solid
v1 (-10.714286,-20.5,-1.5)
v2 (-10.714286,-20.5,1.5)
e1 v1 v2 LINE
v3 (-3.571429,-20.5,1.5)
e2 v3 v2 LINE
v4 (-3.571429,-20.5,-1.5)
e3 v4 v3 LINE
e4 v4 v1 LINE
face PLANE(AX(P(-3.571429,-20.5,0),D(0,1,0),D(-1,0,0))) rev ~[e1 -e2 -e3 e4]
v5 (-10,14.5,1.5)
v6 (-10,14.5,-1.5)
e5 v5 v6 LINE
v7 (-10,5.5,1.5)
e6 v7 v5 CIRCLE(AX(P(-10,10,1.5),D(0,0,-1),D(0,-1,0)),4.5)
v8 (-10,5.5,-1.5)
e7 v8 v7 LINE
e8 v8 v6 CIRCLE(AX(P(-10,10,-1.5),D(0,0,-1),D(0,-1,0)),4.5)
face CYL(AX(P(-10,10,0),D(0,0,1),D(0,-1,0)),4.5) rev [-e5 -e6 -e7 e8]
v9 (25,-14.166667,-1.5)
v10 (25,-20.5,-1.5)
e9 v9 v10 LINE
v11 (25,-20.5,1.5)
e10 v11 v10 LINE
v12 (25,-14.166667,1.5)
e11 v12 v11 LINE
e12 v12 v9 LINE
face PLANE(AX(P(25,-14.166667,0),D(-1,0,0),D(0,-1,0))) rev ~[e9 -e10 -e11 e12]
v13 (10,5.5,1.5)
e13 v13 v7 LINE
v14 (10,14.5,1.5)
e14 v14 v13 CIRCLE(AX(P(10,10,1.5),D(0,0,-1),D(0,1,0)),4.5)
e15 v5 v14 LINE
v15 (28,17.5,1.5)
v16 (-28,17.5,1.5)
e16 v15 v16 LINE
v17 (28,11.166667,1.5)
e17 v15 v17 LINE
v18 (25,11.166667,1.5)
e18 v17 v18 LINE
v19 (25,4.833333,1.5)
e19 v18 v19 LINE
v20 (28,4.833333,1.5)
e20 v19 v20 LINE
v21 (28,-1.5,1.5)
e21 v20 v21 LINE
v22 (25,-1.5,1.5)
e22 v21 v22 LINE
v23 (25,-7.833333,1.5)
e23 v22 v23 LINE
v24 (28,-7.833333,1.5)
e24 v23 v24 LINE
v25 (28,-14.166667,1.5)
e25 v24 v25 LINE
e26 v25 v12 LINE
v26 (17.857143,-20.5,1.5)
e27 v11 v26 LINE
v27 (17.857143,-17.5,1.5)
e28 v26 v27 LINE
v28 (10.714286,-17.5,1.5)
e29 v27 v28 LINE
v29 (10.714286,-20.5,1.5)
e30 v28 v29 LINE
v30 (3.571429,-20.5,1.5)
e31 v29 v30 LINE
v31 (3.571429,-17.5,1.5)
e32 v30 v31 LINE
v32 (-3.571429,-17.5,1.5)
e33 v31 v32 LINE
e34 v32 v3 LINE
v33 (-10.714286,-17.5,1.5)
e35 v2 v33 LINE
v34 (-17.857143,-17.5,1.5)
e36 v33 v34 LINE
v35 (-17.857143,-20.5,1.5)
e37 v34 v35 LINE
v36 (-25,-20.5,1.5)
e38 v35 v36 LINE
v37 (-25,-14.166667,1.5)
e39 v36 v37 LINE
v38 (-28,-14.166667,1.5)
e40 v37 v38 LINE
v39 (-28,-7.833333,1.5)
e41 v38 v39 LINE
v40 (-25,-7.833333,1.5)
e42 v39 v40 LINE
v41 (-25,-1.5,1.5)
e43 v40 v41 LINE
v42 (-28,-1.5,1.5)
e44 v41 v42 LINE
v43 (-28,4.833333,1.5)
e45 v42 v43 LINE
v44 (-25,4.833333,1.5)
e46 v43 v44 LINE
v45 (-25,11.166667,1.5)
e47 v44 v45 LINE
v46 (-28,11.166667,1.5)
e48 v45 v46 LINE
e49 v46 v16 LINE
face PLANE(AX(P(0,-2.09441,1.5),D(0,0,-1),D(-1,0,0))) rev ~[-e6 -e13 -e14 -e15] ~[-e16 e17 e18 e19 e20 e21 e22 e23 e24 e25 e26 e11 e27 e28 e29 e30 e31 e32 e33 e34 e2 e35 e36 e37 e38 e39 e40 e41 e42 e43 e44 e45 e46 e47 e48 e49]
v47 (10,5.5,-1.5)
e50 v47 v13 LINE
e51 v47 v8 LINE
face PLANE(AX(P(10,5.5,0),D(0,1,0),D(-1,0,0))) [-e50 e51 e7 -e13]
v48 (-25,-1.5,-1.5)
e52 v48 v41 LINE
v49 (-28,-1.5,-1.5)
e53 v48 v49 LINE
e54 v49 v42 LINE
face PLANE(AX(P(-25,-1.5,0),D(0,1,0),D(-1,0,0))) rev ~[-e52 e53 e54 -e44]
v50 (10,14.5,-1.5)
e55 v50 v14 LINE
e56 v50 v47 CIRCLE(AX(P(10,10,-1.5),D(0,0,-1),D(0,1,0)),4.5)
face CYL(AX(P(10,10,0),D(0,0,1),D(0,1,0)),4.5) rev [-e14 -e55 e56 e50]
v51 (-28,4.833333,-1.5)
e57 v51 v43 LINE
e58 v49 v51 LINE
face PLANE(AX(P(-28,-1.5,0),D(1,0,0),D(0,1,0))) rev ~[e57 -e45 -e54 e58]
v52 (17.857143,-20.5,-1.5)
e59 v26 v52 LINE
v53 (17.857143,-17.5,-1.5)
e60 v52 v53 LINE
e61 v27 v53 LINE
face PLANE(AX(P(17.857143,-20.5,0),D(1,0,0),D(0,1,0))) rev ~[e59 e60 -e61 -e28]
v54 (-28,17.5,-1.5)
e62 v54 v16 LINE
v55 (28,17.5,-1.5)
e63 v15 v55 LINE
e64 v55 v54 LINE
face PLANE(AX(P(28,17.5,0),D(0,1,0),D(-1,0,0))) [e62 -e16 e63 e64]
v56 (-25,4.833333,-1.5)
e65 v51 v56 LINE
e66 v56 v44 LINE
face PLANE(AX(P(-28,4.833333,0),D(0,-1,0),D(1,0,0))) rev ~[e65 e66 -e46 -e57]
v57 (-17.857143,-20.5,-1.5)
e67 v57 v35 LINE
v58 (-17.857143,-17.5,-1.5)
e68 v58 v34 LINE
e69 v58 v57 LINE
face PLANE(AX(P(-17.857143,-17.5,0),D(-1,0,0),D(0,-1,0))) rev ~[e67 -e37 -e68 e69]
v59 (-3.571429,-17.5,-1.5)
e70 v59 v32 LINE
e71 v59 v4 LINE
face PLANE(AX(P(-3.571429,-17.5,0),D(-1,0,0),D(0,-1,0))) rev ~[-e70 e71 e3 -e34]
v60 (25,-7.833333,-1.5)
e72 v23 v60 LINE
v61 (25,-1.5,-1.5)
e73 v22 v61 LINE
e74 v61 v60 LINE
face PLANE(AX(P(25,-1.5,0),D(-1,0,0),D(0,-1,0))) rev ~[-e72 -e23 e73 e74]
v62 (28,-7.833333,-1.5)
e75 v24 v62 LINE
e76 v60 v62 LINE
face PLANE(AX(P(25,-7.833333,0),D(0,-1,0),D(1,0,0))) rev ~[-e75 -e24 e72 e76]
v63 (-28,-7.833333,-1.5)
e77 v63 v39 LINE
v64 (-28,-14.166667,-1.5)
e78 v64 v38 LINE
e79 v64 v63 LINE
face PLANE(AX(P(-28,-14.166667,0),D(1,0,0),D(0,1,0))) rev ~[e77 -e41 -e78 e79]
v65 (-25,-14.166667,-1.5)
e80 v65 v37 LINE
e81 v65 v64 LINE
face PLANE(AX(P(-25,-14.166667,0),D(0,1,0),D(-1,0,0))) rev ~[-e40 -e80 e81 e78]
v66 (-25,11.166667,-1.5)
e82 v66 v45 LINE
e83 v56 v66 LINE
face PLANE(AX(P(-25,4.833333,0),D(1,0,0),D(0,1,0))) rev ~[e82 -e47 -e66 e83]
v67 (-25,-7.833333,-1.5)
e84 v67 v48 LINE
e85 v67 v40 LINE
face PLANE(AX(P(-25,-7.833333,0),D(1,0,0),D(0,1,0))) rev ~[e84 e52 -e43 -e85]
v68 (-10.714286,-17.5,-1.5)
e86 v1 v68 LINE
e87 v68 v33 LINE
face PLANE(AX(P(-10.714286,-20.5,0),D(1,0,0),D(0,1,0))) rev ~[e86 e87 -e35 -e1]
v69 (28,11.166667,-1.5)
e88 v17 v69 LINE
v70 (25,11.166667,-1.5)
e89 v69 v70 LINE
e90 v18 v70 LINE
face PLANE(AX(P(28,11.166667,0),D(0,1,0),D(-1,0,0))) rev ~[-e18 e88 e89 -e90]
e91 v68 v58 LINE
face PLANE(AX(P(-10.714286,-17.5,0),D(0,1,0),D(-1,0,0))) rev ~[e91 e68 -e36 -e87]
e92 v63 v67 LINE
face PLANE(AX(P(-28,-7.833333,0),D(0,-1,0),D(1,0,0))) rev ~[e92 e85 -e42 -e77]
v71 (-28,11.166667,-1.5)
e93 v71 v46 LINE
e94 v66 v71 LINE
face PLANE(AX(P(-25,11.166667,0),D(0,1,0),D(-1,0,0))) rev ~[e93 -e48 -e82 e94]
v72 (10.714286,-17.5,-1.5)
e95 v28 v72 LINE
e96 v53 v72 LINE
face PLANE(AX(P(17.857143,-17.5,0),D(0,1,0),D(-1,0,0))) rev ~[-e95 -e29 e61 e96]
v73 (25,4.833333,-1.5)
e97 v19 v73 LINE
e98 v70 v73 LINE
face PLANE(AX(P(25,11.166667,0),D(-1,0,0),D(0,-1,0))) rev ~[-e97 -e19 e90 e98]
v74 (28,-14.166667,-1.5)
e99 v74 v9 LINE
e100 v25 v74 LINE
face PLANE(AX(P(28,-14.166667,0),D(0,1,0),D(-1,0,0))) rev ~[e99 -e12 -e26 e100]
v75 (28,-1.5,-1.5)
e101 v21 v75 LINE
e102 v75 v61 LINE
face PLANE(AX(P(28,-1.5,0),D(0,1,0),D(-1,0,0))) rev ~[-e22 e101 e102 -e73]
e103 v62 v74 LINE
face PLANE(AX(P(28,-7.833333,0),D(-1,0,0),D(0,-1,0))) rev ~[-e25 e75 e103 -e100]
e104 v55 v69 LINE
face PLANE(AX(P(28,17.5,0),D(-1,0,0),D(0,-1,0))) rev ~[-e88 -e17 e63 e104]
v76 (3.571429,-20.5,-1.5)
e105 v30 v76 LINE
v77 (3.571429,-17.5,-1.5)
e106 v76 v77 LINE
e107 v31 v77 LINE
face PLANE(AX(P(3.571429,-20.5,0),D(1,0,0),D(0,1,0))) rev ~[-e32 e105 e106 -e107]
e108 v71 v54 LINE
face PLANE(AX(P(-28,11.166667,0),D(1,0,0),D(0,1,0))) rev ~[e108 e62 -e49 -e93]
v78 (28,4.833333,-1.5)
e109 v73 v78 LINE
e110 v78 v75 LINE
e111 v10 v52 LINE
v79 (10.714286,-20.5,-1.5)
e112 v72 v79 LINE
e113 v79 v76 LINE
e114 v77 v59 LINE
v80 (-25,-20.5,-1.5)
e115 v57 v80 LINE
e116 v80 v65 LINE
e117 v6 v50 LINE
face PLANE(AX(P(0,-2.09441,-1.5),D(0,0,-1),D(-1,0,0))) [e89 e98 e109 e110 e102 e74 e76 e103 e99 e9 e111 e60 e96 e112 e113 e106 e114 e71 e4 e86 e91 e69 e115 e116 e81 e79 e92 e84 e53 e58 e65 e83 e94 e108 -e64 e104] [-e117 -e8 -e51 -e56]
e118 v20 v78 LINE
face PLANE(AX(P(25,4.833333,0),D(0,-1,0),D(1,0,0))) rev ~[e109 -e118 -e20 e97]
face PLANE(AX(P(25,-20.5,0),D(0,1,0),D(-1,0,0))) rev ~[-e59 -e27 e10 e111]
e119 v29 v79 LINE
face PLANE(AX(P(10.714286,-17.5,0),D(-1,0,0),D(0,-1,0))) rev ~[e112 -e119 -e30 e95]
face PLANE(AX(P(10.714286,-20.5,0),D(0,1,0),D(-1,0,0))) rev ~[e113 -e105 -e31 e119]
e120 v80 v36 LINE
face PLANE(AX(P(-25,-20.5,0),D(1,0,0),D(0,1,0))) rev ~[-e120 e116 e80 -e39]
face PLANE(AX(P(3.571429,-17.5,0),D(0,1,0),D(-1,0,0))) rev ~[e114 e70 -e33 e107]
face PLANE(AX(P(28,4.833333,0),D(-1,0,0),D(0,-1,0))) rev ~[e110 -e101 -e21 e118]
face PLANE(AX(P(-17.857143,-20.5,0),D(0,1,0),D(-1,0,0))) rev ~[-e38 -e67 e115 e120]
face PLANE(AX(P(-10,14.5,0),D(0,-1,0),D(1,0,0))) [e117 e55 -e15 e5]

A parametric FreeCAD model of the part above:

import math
import FreeCAD as App
import Part
import Sketcher

V = App.Vector


def add_polygon(sketch, points):
    """Adds a closed chain of lines whose ends are joined by coincident constraints."""
    first, n = sketch.GeometryCount, len(points)
    for a, b in zip(points, points[1:] + points[:1]):
        sketch.addGeometry(Part.LineSegment(App.Vector(*a, 0), App.Vector(*b, 0)), False)
    for i in range(n):
        sketch.addConstraint(Sketcher.Constraint("Coincident", first + i, 2, first + (i + 1) % n, 1))

doc = App.newDocument("Part")
body = doc.addObject("PartDesign::Body", "Body")

# Sketch on XY plane
sketch1 = doc.addObject("Sketcher::SketchObject", "Sketch")
body.addObject(sketch1)
sketch1.AttachmentSupport = (doc.XY_Plane, [""])
sketch1.MapMode = "FlatFace"
add_polygon(sketch1, [(28, 17.5), (-28, 17.5), (-28, 11.2), (-25, 11.2), (-25, 4.8), (-28, 4.8), (-28, -1.5), (-25, -1.5), (-25, -7.8), (-28, -7.8), (-28, -14.2), (-25, -14.2), (-25, -20.5), (-17.9, -20.5), (-17.9, -17.5), (-10.7, -17.5), (-10.7, -20.5), (-3.6, -20.5), (-3.6, -17.5), (3.6, -17.5), (3.6, -20.5), (10.7, -20.5), (10.7, -17.5), (17.9, -17.5), (17.9, -20.5), (25, -20.5), (25, -14.2), (28, -14.2), (28, -7.8), (25, -7.8), (25, -1.5), (28, -1.5), (28, 4.8), (25, 4.8), (25, 11.2), (28, 11.2)])  # lines 0-35
sketch1.addGeometry(Part.LineSegment(V(-10, 14.5, 0), V(10, 14.5, 0)), False)  # 36
sketch1.addGeometry(Part.ArcOfCircle(Part.Circle(V(10, 10, 0), V(0, 0, 1), 4.5), math.radians(-90), math.radians(90)), False)  # 37
sketch1.addGeometry(Part.LineSegment(V(10, 5.5, 0), V(-10, 5.5, 0)), False)  # 38
sketch1.addGeometry(Part.ArcOfCircle(Part.Circle(V(-10, 10, 0), V(0, 0, 1), 4.5), math.radians(90), math.radians(270)), False)  # 39
sketch1.addConstraint(Sketcher.Constraint("Tangent", 36, 2, 37, 2))
sketch1.addConstraint(Sketcher.Constraint("Tangent", 37, 1, 38, 1))
sketch1.addConstraint(Sketcher.Constraint("Tangent", 38, 2, 39, 2))
sketch1.addConstraint(Sketcher.Constraint("Tangent", 39, 1, 36, 1))
sketch1.addConstraint(Sketcher.Constraint("Horizontal", 0))
sketch1.addConstraint(Sketcher.Constraint("Vertical", 1))
sketch1.addConstraint(Sketcher.Constraint("Horizontal", 2))
sketch1.addConstraint(Sketcher.Constraint("Vertical", 3))
sketch1.addConstraint(Sketcher.Constraint("Horizontal", 4))
sketch1.addConstraint(Sketcher.Constraint("Vertical", 5))
sketch1.addConstraint(Sketcher.Constraint("Horizontal", 6))
sketch1.addConstraint(Sketcher.Constraint("Vertical", 7))
sketch1.addConstraint(Sketcher.Constraint("Horizontal", 8))
sketch1.addConstraint(Sketcher.Constraint("Vertical", 9))
sketch1.addConstraint(Sketcher.Constraint("Horizontal", 10))
sketch1.addConstraint(Sketcher.Constraint("Vertical", 11))
sketch1.addConstraint(Sketcher.Constraint("Horizontal", 12))
sketch1.addConstraint(Sketcher.Constraint("Vertical", 13))
sketch1.addConstraint(Sketcher.Constraint("Horizontal", 14))
sketch1.addConstraint(Sketcher.Constraint("Vertical", 15))
sketch1.addConstraint(Sketcher.Constraint("Horizontal", 16))
sketch1.addConstraint(Sketcher.Constraint("Vertical", 17))
sketch1.addConstraint(Sketcher.Constraint("Horizontal", 18))
sketch1.addConstraint(Sketcher.Constraint("Vertical", 19))
sketch1.addConstraint(Sketcher.Constraint("Horizontal", 20))
sketch1.addConstraint(Sketcher.Constraint("Vertical", 21))
sketch1.addConstraint(Sketcher.Constraint("Horizontal", 22))
sketch1.addConstraint(Sketcher.Constraint("Vertical", 23))
sketch1.addConstraint(Sketcher.Constraint("Horizontal", 24))
sketch1.addConstraint(Sketcher.Constraint("Vertical", 25))
sketch1.addConstraint(Sketcher.Constraint("Horizontal", 26))
sketch1.addConstraint(Sketcher.Constraint("Vertical", 27))
sketch1.addConstraint(Sketcher.Constraint("Horizontal", 28))
sketch1.addConstraint(Sketcher.Constraint("Vertical", 29))
sketch1.addConstraint(Sketcher.Constraint("Horizontal", 30))
sketch1.addConstraint(Sketcher.Constraint("Vertical", 31))
sketch1.addConstraint(Sketcher.Constraint("Horizontal", 32))
sketch1.addConstraint(Sketcher.Constraint("Vertical", 33))
sketch1.addConstraint(Sketcher.Constraint("Horizontal", 34))
sketch1.addConstraint(Sketcher.Constraint("Vertical", 35))
sketch1.addConstraint(Sketcher.Constraint("Horizontal", 36))
sketch1.addConstraint(Sketcher.Constraint("Horizontal", 38))
sketch1.addConstraint(Sketcher.Constraint("Symmetric", 16, 2, 19, 2, -2))
sketch1.addConstraint(Sketcher.Constraint("Symmetric", 14, 2, 21, 2, -2))
sketch1.addConstraint(Sketcher.Constraint("Symmetric", 12, 2, 23, 2, -2))
sketch1.addConstraint(Sketcher.Constraint("Symmetric", 10, 2, 25, 2, -2))
sketch1.addConstraint(Sketcher.Constraint("Symmetric", 8, 2, 27, 2, -2))
sketch1.addConstraint(Sketcher.Constraint("Symmetric", 6, 2, 29, 2, -2))
sketch1.addConstraint(Sketcher.Constraint("Symmetric", 4, 2, 31, 2, -2))
sketch1.addConstraint(Sketcher.Constraint("Symmetric", 2, 2, 33, 2, -2))
sketch1.addConstraint(Sketcher.Constraint("Horizontal", 12, 2, 15, 2))
sketch1.addConstraint(Sketcher.Constraint("Horizontal", 14, 2, 17, 2))
sketch1.addConstraint(Sketcher.Constraint("Vertical", 1, 2, 4, 2))
sketch1.addConstraint(Sketcher.Constraint("Vertical", 3, 2, 6, 2))
sketch1.addConstraint(Sketcher.Constraint("Vertical", 5, 2, 8, 2))
sketch1.addConstraint(Sketcher.Constraint("Vertical", 7, 2, 10, 2))
sketch1.addConstraint(Sketcher.Constraint("Vertical", 31, 2, 34, 2))
sketch1.addConstraint(Sketcher.Constraint("Equal", 12, 14))
sketch1.addConstraint(Sketcher.Constraint("Equal", 14, 16))
sketch1.addConstraint(Sketcher.Constraint("Equal", 16, 18))
sketch1.addConstraint(Sketcher.Constraint("Equal", 1, 3))
sketch1.addConstraint(Sketcher.Constraint("Equal", 3, 5))
sketch1.addConstraint(Sketcher.Constraint("Equal", 5, 7))
sketch1.addConstraint(Sketcher.Constraint("Equal", 7, 9))
sketch1.addConstraint(Sketcher.Constraint("Equal", 9, 11))
sketch1.addConstraint(Sketcher.Constraint("Equal", 34, 13))
sketch1.addConstraint(Sketcher.Constraint("Radius", 37, 4.5))
sketch1.addConstraint(Sketcher.Constraint("DistanceX", 0, 2, 0, 1, 56.0))
sketch1.addConstraint(Sketcher.Constraint("DistanceX", 2, 1, 2, 2, 3.0))
sketch1.addConstraint(Sketcher.Constraint("DistanceX", 36, 1, 36, 2, 20.0))
sketch1.addConstraint(Sketcher.Constraint("DistanceX", -1, 1, 37, 3, 10.0))
sketch1.addConstraint(Sketcher.Constraint("DistanceY", -1, 1, 37, 3, 10.0))
sketch1.addConstraint(Sketcher.Constraint("DistanceY", 5, 2, 0, 2, 19.0))
sketch1.addConstraint(Sketcher.Constraint("DistanceY", 36, 2, 35, 2, 3.0))
pad1 = doc.addObject("PartDesign::Pad", "Pad")
body.addObject(pad1)
pad1.Profile = sketch1
pad1.Length = 3
pad1.Midplane = True

doc.recompute()
